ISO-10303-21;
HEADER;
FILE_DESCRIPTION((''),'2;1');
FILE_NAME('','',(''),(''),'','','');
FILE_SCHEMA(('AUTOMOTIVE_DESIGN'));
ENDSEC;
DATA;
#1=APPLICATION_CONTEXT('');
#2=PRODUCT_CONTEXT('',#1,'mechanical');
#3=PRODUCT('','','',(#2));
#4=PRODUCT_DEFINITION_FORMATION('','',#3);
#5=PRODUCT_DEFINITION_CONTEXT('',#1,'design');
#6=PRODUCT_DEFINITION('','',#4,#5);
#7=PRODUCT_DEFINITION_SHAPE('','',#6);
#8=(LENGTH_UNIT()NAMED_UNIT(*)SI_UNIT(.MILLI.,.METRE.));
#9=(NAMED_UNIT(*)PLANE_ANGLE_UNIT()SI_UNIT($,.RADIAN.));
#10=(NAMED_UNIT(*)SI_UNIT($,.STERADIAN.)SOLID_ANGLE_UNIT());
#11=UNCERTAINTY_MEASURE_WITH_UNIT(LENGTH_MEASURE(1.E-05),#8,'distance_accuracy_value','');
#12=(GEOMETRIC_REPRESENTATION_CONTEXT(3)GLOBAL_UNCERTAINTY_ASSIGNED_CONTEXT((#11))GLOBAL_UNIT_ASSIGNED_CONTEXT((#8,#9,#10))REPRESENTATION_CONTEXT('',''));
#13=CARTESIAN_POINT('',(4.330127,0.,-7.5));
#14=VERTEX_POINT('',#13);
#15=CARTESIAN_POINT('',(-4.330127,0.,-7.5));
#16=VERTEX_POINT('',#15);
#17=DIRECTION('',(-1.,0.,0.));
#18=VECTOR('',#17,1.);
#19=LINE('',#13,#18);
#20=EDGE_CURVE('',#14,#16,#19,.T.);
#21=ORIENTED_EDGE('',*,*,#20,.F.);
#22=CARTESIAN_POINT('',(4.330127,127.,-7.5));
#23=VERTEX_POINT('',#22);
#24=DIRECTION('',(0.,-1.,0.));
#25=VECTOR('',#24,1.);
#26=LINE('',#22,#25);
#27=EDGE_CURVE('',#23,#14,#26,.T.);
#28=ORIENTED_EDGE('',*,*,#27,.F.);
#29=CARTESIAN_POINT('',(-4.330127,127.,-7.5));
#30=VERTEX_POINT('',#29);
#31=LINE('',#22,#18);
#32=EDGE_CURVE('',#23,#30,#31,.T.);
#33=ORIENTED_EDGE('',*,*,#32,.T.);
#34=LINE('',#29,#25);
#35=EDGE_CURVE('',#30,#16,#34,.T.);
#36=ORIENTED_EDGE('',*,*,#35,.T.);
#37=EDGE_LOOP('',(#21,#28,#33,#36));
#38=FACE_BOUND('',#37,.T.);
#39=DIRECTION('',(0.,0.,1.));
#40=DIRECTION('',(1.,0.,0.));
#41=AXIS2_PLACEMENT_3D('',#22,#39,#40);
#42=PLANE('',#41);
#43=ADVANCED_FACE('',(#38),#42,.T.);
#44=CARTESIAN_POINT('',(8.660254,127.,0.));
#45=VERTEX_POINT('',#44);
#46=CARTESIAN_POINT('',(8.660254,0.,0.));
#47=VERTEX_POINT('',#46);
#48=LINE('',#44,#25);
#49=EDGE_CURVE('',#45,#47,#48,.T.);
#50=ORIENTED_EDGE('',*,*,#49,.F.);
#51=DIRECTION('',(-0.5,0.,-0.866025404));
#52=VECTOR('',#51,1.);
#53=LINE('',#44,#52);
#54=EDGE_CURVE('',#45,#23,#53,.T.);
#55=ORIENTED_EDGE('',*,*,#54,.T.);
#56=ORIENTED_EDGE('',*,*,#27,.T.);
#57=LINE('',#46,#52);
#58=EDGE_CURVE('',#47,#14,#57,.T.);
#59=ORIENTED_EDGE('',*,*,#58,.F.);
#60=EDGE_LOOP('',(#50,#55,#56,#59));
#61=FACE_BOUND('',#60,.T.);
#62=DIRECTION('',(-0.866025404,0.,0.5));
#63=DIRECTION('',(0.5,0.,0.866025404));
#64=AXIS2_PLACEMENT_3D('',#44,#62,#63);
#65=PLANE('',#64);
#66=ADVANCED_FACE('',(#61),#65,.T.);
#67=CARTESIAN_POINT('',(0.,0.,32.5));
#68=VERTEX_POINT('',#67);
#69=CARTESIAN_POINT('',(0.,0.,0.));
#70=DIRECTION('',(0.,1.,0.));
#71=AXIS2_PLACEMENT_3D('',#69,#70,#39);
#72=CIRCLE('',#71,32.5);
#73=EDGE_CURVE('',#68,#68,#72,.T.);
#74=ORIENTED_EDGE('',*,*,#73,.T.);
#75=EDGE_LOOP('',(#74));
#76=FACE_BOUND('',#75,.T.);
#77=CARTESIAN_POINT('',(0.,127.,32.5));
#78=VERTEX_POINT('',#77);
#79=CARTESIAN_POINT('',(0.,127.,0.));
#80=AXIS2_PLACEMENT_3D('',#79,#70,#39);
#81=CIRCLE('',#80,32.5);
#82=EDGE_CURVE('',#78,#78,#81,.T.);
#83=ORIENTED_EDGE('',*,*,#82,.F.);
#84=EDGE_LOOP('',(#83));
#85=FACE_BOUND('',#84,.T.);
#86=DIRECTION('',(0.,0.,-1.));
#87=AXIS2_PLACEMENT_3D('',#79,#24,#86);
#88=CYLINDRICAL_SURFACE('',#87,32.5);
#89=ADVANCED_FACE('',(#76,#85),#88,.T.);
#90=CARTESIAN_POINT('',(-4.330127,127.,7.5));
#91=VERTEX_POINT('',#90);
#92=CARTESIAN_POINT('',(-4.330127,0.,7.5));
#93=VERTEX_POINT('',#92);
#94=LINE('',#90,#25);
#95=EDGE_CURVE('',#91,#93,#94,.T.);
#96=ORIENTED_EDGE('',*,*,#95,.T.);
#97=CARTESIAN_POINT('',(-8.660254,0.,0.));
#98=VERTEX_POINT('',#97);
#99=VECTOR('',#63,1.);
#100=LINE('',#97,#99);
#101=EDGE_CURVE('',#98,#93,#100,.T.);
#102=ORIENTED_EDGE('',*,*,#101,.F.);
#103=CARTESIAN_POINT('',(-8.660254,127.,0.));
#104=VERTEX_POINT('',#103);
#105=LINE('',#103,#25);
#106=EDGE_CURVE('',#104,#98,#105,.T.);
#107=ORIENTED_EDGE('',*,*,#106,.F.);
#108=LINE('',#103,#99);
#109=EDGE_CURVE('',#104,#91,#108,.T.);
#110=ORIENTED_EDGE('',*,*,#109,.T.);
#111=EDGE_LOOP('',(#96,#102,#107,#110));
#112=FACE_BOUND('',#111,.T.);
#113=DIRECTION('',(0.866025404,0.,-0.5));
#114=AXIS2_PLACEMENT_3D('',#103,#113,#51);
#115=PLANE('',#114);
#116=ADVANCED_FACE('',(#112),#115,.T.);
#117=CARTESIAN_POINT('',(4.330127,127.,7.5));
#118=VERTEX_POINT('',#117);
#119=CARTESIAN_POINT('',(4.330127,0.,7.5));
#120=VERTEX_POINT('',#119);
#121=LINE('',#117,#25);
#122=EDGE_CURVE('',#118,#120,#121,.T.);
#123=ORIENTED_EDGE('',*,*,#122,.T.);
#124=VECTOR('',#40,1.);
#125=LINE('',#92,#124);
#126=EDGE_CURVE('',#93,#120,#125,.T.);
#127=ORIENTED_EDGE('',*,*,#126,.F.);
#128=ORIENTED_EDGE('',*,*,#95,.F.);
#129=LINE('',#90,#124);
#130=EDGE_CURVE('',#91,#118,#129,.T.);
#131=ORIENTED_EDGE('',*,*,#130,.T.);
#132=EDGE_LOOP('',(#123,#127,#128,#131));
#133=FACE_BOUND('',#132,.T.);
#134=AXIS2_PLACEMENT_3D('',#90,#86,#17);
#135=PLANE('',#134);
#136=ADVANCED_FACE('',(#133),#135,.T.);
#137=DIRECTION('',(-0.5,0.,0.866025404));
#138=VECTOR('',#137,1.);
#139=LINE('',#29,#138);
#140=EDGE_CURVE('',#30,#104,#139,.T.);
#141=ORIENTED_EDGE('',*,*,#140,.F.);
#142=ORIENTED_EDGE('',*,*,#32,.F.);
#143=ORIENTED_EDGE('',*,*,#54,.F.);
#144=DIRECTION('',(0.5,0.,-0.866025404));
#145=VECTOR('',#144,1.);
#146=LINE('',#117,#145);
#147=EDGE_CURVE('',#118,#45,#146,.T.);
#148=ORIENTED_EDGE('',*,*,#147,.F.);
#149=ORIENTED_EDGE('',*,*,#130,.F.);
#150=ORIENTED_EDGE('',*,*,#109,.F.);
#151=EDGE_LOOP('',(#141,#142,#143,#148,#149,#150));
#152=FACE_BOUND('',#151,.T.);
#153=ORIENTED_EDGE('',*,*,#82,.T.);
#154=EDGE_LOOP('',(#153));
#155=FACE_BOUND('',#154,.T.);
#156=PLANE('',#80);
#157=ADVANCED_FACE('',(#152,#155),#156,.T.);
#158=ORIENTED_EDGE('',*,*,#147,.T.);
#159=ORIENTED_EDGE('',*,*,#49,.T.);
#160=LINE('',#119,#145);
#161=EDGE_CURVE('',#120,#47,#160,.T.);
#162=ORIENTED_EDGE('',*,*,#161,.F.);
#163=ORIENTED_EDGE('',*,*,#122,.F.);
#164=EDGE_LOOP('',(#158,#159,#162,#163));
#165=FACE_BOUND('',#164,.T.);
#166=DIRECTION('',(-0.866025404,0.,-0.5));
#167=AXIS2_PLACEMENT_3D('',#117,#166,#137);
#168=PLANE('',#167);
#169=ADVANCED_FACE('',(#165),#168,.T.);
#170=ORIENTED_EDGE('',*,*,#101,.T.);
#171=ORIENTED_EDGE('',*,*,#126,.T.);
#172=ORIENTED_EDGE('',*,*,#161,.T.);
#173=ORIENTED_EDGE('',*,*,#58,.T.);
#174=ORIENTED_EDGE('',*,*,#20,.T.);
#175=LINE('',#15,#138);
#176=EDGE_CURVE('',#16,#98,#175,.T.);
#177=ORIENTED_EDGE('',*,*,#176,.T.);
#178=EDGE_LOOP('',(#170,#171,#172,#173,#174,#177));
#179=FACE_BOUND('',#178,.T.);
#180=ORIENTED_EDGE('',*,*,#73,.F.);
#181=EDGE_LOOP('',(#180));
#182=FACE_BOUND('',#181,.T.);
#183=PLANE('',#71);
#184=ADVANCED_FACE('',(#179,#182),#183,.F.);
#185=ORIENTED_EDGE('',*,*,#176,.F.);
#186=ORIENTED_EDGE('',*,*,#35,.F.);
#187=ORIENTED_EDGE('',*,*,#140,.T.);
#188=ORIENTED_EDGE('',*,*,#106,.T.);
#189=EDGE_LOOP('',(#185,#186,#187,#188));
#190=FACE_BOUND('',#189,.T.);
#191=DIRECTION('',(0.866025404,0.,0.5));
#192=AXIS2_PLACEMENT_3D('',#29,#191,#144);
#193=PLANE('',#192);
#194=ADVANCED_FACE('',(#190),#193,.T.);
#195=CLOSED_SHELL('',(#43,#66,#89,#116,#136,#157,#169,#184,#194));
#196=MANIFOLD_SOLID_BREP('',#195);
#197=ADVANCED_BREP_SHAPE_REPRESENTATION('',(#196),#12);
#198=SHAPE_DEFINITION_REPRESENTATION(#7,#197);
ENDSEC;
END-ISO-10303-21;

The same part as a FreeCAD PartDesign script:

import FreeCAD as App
import Part
import Sketcher
from FreeCAD import Vector
Q = App.Units.Quantity


def add_polygon(sketch, points):
    """Adds a closed chain of lines whose ends are joined by coincident constraints."""
    first, n = sketch.GeometryCount, len(points)
    for a, b in zip(points, points[1:] + points[:1]):
        sketch.addGeometry(Part.LineSegment(App.Vector(*a, 0), App.Vector(*b, 0)), False)
    for i in range(n):
        sketch.addConstraint(Sketcher.Constraint("Coincident", first + i, 2, first + (i + 1) % n, 1))

doc = App.newDocument("Part")
body = doc.addObject("PartDesign::Body", "Body")

sketch1 = body.newObject("Sketcher::SketchObject", "Sketch")
sketch1.AttachmentSupport = (doc.getObject("XZ_Plane"), [""])
sketch1.MapMode = "FlatFace"
sketch1.addGeometry(Part.Circle(Vector(0, 0, 0), Vector(0, 0, 1), 32), False)
add_polygon(sketch1, [(4, -8), (9, 0), (4, 8), (-4, 8), (-9, 0), (-4, -8)])
sketch1.addConstraint([
    Sketcher.Constraint("Horizontal", 3),
    Sketcher.Constraint("Horizontal", 6),
    Sketcher.Constraint("Coincident", 0, 3, -1, 1),
    Sketcher.Constraint("Symmetric", 1, 2, 4, 2, -1, 1),
    Sketcher.Constraint("Symmetric", 2, 2, 5, 2, -1, 1),
    Sketcher.Constraint("PointOnObject", 1, 2, -1),
    Sketcher.Constraint("Parallel", 1, 4),
    Sketcher.Constraint("Vertical", 3, 2, 5, 2),
    Sketcher.Constraint("Diameter", 0, 65.0),
    Sketcher.Constraint("Angle", 1, Q("60 deg")),
    Sketcher.Constraint("DistanceY", 5, 2, 3, 2, 15.0),
    Sketcher.Constraint("DistanceX", 3, 2, 3, 1, 8.660254),
])
pad1 = body.newObject("PartDesign::Pad", "Pad")
pad1.Profile = sketch1
pad1.Length = 127
pad1.Reversed = True

doc.recompute()
